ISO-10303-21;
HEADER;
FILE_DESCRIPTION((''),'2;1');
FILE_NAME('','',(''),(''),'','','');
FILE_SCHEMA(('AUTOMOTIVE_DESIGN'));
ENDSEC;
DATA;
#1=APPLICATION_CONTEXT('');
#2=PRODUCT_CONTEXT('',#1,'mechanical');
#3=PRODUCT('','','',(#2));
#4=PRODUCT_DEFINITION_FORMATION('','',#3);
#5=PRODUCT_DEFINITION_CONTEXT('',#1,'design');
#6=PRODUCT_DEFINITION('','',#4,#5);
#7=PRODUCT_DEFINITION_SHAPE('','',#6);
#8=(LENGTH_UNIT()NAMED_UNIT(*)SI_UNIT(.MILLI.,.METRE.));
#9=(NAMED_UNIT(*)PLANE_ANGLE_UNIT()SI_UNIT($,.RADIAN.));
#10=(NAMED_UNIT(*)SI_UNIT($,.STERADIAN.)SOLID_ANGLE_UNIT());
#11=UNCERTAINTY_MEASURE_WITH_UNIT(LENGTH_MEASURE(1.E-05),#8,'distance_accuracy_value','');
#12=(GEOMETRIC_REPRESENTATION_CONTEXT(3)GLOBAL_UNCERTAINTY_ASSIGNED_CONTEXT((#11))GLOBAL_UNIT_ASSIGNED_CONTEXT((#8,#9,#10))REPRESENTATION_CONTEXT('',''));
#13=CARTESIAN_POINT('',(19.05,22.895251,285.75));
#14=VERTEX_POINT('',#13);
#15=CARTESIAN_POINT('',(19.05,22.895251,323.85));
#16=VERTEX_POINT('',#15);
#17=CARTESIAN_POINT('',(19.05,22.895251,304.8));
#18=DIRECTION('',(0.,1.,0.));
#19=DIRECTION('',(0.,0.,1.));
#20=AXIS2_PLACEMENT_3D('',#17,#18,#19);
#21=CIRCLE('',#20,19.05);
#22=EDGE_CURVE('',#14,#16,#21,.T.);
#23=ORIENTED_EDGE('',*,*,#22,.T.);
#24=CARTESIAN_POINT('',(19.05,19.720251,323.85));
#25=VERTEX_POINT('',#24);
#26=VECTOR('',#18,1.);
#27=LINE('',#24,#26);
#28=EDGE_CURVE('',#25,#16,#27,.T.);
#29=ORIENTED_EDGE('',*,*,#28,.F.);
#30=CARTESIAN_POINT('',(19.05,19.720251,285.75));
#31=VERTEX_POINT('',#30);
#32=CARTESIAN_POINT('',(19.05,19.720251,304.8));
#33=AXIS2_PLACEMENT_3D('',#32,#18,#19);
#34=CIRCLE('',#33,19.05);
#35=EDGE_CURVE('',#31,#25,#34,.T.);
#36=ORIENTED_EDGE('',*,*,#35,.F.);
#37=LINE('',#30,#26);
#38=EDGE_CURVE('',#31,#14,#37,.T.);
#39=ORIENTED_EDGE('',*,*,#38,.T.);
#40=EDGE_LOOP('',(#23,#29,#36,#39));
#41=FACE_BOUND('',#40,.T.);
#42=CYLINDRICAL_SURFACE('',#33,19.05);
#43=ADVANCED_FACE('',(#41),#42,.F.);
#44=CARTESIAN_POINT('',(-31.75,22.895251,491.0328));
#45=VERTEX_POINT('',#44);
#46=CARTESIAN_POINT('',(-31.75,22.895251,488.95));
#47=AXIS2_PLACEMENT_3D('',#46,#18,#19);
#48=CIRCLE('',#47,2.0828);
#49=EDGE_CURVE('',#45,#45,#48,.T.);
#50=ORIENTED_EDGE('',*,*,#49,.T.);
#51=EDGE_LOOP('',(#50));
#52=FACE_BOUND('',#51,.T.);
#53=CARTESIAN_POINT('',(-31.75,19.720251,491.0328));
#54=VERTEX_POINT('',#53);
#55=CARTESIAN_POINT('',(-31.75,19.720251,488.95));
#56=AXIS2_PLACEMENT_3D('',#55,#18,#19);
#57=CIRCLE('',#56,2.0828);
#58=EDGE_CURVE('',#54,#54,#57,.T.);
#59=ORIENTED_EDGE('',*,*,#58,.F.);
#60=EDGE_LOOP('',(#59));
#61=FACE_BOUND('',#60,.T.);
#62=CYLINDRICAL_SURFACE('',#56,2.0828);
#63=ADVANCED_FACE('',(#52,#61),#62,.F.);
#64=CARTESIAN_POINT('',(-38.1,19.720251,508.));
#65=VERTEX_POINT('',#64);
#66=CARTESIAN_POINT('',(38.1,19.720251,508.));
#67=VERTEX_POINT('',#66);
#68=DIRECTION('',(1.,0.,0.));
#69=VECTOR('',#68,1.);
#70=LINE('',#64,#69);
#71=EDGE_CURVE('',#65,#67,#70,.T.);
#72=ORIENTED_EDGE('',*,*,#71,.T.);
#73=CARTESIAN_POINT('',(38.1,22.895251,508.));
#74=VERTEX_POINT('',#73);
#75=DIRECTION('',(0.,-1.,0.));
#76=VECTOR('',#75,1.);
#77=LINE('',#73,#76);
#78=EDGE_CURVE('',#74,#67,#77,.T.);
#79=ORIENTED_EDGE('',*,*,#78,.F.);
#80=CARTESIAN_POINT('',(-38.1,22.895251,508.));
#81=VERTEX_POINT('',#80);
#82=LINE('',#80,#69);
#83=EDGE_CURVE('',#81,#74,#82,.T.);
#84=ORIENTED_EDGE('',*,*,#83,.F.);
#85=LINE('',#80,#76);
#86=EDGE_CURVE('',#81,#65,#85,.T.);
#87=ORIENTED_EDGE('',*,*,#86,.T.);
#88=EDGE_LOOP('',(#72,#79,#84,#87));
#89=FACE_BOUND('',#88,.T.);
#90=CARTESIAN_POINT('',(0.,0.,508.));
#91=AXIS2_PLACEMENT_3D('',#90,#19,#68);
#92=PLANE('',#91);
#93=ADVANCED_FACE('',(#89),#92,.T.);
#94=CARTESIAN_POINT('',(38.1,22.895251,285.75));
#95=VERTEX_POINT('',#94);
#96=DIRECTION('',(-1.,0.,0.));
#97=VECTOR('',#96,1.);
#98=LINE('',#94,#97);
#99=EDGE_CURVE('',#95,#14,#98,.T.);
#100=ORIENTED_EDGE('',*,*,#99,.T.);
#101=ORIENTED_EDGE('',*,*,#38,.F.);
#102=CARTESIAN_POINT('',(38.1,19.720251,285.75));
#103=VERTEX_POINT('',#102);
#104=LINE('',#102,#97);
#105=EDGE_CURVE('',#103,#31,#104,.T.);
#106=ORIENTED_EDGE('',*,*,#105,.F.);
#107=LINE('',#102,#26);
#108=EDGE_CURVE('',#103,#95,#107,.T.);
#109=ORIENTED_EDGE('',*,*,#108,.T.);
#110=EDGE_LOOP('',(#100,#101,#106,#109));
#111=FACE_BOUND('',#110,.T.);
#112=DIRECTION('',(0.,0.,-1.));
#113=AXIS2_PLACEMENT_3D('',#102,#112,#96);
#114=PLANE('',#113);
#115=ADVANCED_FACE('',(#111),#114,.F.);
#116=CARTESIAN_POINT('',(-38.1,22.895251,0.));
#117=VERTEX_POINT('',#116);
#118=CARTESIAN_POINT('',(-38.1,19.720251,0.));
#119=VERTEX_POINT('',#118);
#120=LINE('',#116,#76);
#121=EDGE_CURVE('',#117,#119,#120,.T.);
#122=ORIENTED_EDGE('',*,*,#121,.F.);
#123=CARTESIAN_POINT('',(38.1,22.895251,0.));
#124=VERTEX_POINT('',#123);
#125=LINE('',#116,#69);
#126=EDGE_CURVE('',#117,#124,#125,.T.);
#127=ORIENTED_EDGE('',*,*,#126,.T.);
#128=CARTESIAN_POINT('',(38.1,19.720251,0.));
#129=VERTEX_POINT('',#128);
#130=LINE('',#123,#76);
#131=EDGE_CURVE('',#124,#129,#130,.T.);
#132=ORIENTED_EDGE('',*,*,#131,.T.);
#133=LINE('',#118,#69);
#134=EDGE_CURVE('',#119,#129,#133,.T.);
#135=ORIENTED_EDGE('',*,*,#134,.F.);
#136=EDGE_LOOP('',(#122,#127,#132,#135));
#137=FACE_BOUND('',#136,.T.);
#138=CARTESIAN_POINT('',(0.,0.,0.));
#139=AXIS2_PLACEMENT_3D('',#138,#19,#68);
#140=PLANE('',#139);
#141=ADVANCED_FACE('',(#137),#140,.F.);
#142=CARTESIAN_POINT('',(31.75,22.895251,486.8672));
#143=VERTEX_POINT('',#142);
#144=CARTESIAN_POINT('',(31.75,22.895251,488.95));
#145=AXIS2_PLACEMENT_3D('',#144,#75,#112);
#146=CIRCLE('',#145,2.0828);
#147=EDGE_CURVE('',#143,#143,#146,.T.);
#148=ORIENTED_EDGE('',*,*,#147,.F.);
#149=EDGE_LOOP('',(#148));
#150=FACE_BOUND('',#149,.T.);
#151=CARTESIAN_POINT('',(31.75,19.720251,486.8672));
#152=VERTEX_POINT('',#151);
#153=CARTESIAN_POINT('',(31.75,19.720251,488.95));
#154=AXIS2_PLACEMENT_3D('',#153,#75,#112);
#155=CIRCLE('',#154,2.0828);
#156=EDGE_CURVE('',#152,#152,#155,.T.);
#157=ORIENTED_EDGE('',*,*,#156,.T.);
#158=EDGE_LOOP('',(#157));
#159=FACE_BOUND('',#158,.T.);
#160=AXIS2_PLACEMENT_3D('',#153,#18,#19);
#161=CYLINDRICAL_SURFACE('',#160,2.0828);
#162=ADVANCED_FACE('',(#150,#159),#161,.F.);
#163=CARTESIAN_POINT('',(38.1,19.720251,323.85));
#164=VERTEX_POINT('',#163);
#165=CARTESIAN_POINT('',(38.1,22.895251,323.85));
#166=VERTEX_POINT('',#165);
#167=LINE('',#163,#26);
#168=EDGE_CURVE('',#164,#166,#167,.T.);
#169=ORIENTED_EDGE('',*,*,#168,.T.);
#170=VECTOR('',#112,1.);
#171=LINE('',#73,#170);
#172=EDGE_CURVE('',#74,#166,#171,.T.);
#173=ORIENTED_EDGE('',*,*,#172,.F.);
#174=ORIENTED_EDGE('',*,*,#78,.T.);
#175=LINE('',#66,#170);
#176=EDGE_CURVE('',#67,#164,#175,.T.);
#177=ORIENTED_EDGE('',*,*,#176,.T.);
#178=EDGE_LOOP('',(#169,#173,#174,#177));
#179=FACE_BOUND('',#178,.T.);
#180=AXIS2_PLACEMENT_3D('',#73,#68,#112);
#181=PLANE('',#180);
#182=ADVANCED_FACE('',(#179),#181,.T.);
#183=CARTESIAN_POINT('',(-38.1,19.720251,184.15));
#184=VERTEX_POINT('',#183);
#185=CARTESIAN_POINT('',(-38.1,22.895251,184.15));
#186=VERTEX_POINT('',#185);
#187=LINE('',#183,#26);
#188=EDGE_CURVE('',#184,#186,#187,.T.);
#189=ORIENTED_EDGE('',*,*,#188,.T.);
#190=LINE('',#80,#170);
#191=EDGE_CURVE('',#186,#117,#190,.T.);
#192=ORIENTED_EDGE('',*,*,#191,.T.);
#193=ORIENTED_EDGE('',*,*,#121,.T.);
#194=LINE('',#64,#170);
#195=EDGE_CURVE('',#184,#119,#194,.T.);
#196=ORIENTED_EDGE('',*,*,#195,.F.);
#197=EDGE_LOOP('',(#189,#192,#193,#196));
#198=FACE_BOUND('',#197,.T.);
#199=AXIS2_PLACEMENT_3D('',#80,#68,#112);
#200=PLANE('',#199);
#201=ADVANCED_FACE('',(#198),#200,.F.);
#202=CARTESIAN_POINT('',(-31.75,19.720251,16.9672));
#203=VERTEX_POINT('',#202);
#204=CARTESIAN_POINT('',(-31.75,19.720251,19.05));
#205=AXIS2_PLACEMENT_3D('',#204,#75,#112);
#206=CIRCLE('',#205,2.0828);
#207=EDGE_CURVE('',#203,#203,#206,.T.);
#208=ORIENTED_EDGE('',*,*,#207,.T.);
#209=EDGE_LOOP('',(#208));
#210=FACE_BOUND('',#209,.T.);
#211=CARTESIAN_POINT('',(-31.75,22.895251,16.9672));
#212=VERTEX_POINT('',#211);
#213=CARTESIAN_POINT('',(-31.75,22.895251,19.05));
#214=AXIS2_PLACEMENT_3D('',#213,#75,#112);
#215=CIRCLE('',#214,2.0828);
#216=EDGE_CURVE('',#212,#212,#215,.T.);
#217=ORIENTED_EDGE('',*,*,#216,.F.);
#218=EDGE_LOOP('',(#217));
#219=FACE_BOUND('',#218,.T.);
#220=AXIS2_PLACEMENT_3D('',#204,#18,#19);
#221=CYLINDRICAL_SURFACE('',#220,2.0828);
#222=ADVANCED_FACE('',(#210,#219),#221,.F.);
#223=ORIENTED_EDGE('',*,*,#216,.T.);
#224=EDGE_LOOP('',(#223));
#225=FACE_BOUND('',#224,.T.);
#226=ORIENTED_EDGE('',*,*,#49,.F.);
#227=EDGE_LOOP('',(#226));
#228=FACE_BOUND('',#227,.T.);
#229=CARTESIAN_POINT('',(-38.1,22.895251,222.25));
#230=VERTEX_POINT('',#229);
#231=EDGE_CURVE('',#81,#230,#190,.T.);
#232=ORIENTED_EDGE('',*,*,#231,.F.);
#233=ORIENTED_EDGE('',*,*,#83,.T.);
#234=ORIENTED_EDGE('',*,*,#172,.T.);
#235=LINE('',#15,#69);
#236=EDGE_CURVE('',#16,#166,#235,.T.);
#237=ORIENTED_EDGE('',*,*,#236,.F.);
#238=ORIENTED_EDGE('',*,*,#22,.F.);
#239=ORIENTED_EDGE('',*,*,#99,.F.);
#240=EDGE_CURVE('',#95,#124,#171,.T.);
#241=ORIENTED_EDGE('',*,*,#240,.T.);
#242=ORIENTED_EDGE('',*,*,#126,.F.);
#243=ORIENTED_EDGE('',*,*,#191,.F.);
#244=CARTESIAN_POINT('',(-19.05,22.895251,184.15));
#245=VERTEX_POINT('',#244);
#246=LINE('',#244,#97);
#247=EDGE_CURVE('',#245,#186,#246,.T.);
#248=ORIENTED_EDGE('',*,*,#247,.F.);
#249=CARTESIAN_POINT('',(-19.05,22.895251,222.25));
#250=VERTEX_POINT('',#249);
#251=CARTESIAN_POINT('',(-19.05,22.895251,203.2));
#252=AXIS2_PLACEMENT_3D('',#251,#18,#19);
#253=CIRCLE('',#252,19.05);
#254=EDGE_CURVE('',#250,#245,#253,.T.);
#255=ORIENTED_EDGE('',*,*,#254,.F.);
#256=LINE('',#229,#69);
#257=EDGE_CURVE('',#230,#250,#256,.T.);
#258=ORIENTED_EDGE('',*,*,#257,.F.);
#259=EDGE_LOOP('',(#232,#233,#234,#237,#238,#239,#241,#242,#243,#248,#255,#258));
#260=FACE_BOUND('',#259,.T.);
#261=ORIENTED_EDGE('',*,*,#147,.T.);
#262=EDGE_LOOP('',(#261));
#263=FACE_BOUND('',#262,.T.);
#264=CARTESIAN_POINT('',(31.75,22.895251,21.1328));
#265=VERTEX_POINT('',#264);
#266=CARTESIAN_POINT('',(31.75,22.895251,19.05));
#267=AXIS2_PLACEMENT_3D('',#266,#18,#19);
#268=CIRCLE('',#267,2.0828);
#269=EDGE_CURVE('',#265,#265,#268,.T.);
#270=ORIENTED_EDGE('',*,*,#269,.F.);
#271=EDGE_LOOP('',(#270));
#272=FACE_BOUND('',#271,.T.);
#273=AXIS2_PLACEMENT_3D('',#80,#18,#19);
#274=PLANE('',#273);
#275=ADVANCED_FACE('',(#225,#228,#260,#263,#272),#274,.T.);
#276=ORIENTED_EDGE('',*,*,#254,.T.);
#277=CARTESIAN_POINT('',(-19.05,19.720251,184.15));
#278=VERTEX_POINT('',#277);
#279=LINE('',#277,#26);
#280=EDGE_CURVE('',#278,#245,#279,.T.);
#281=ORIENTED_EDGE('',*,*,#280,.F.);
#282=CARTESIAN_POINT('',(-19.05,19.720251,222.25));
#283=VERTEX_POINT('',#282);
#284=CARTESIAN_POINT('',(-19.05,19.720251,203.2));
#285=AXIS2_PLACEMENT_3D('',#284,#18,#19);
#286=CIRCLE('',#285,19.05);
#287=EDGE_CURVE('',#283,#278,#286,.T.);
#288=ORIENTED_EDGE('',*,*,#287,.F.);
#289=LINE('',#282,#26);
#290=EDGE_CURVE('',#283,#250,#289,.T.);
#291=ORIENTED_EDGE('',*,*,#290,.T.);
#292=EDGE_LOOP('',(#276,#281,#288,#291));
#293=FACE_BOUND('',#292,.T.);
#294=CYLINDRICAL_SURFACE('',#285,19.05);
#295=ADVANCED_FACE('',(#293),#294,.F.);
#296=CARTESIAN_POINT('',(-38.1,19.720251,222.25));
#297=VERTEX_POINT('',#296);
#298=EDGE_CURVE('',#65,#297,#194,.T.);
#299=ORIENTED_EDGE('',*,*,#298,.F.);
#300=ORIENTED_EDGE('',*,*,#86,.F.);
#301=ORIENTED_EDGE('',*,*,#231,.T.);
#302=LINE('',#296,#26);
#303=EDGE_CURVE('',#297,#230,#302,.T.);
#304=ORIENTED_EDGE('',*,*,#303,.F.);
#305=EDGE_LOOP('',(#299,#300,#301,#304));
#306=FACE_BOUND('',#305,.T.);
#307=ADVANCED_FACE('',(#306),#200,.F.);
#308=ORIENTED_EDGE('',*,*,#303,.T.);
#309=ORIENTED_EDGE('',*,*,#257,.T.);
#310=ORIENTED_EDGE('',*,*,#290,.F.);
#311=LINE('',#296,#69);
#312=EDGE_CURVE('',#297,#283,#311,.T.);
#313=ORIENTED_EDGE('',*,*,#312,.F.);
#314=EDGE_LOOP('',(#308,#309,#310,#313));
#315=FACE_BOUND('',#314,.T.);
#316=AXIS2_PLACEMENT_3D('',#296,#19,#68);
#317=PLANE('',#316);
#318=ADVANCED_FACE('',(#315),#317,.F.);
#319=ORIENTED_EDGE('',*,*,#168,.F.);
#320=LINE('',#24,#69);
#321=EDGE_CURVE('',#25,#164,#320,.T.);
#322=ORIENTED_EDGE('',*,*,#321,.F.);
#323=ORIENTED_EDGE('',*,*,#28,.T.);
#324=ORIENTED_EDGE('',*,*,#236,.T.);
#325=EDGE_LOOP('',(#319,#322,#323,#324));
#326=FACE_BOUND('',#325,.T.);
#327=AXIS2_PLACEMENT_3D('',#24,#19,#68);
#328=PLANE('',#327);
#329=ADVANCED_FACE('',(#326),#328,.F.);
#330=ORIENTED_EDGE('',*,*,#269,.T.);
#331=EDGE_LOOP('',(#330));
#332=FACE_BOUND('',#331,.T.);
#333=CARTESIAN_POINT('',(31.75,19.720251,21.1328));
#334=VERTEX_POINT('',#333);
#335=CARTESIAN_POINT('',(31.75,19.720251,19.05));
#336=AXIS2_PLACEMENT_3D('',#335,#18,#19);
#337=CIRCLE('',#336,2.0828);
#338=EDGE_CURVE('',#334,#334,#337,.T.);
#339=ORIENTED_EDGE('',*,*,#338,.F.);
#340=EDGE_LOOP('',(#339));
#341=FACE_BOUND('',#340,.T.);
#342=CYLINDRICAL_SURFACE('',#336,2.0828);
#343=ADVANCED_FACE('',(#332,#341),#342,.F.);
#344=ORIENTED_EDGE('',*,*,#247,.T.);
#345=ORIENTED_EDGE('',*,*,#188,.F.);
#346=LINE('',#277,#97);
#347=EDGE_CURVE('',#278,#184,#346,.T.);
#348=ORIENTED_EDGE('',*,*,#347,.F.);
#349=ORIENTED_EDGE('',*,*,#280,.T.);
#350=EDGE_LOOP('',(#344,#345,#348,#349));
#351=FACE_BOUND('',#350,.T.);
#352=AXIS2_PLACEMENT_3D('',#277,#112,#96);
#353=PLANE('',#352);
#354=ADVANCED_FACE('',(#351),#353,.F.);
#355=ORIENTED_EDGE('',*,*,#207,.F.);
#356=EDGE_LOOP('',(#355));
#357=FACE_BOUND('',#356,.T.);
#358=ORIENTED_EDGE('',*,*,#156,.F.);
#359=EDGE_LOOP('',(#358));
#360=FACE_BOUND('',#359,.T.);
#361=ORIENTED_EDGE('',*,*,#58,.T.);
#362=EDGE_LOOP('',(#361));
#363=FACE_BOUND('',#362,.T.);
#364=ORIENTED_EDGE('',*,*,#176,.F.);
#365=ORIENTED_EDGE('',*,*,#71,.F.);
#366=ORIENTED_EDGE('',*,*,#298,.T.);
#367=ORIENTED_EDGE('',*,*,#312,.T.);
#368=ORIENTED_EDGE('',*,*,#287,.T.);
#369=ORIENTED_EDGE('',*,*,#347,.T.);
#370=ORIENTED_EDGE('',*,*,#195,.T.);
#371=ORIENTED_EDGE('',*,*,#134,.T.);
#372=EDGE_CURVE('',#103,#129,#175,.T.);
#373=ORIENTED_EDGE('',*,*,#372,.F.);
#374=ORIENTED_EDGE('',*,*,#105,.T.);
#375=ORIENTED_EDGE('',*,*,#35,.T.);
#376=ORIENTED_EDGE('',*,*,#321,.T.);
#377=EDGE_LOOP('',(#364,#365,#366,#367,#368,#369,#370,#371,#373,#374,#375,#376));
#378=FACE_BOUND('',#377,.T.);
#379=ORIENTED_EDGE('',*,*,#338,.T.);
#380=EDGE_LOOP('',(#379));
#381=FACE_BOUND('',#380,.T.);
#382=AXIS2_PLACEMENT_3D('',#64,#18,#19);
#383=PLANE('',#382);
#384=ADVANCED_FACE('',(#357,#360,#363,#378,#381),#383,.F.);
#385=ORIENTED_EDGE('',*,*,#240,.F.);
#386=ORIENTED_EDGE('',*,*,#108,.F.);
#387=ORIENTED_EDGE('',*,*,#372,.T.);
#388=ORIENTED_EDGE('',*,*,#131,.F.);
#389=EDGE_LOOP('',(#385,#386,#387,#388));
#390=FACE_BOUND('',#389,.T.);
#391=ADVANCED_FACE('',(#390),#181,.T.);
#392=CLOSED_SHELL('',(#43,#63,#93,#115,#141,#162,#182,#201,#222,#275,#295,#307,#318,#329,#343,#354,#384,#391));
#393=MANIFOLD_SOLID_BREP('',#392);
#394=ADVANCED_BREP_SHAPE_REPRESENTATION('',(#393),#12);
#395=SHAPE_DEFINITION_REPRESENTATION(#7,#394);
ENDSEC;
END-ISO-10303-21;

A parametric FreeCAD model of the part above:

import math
import FreeCAD as App
import Part
import Sketcher

V = App.Vector
Q = App.Units.Quantity


def add_polygon(sketch, points):
    """Adds a closed chain of lines whose ends are joined by coincident constraints."""
    first, n = sketch.GeometryCount, len(points)
    for a, b in zip(points, points[1:] + points[:1]):
        sketch.addGeometry(Part.LineSegment(App.Vector(*a, 0), App.Vector(*b, 0)), False)
    for i in range(n):
        sketch.addConstraint(Sketcher.Constraint("Coincident", first + i, 2, first + (i + 1) % n, 1))

doc = App.newDocument("Part")
params = doc.addObject("Spreadsheet::Sheet", "Params")
for row, (alias, value) in enumerate([
    ("sketch1_width", "3 in"),
    ("sketch1_height", "0.125 in"),
    ("pad1_length", "20 in"),
    ("sketch2_radius", "0.75 in"),
    ("sketch2_width", "0.75 in"),
    ("sketch3_diameter", "0.164 in"),
], start=1):
    params.set(f"A{row}", alias)
    params.set(f"B{row}", "=" + value)
    params.setAlias(f"B{row}", alias)

body = doc.addObject("PartDesign::Body", "Body")

# Sketch on XY plane
sketch1 = body.newObject("Sketcher::SketchObject", "Sketch")
sketch1.AttachmentSupport = (doc.getObject("XY_Plane"), [""])
sketch1.MapMode = "FlatFace"
add_polygon(sketch1, [(-38.1, 22.9), (-38.1, 19.7), (38.1, 19.7), (38.1, 22.9)])  # lines 0-3
sketch1.addConstraint([
    Sketcher.Constraint("Vertical", 0),
    Sketcher.Constraint("Horizontal", 1),
    Sketcher.Constraint("Vertical", 2),
    Sketcher.Constraint("Horizontal", 3),
    Sketcher.Constraint("DistanceX", 1, 1, 1, 2, Q("3 in")),
    Sketcher.Constraint("DistanceX", 0, 2, -1, 1, Q("1.5 in")),
    Sketcher.Constraint("DistanceY", 0, 2, 0, 1, Q("0.125 in")),
    Sketcher.Constraint("DistanceY", -1, 1, 0, 2, Q("19.720251 mm")),
])
sketch1.setExpression("Constraints[8]", "Params.sketch1_width")
sketch1.setExpression("Constraints[10]", "Params.sketch1_height")
pad1 = body.newObject("PartDesign::Pad", "Pad")
pad1.Profile = sketch1
pad1.setExpression("Length", "Params.pad1_length")

# Sketch on XZ plane
sketch2 = body.newObject("Sketcher::SketchObject", "Sketch001")
sketch2.AttachmentSupport = (doc.getObject("XZ_Plane"), [""])
sketch2.MapMode = "FlatFace"
sketch2.AttachmentOffset = App.Placement(V(0, 0, -22.895251), App.Rotation())
sketch2.addGeometry([
    Part.LineSegment(V(-19, 184, 0), V(-38, 184, 0)),  # 0
    Part.LineSegment(V(-38, 184, 0), V(-38, 222, 0)),  # 1
    Part.LineSegment(V(-38, 222, 0), V(-19, 222, 0)),  # 2
    Part.ArcOfCircle(Part.Circle(V(-19, 203, 0), V(0, 0, 1), 19), math.radians(-90), math.radians(90)),  # 3
    Part.LineSegment(V(19, 324, 0), V(38, 324, 0)),  # 4
    Part.LineSegment(V(38, 324, 0), V(38, 286, 0)),  # 5
    Part.LineSegment(V(38, 286, 0), V(19, 286, 0)),  # 6
    Part.ArcOfCircle(Part.Circle(V(19, 305, 0), V(0, 0, 1), 19), math.radians(90), math.radians(270)),  # 7
], False)
sketch2.addConstraint([
    Sketcher.Constraint("Coincident", 0, 2, 1, 1),
    Sketcher.Constraint("Coincident", 1, 2, 2, 1),
    Sketcher.Constraint("Tangent", 2, 2, 3, 2),
    Sketcher.Constraint("Tangent", 3, 1, 0, 1),
    Sketcher.Constraint("Coincident", 4, 2, 5, 1),
    Sketcher.Constraint("Coincident", 5, 2, 6, 1),
    Sketcher.Constraint("Tangent", 6, 2, 7, 2),
    Sketcher.Constraint("Tangent", 7, 1, 4, 1),
    Sketcher.Constraint("Horizontal", 0),
    Sketcher.Constraint("Vertical", 1),
    Sketcher.Constraint("Horizontal", 2),
    Sketcher.Constraint("Horizontal", 4),
    Sketcher.Constraint("Vertical", 5),
    Sketcher.Constraint("Horizontal", 6),
    Sketcher.Constraint("Equal", 3, 7),
    Sketcher.Constraint("Equal", 2, 4),
    Sketcher.Constraint("Radius", 3, Q("0.75 in")),
    Sketcher.Constraint("DistanceY", -1, 1, 3, 3, Q("8 in")),
    Sketcher.Constraint("DistanceY", -1, 1, 7, 3, Q("12 in")),
    Sketcher.Constraint("DistanceX", 1, 2, 4, 2, Q("3 in")),
    Sketcher.Constraint("DistanceX", 0, 2, 0, 1, Q("0.75 in")),
    Sketcher.Constraint("DistanceX", 0, 2, -1, 1, Q("1.5 in")),
])
sketch2.setExpression("Constraints[16]", "Params.sketch2_radius")
sketch2.setExpression("Constraints[20]", "Params.sketch2_width")
pocket1 = body.newObject("PartDesign::Pocket", "Pocket")
pocket1.Profile = sketch2
pocket1.Type = "ThroughAll"
pocket1.Reversed = True

# Sketch on XZ plane
sketch3 = body.newObject("Sketcher::SketchObject", "Sketch002")
sketch3.AttachmentSupport = (doc.getObject("XZ_Plane"), [""])
sketch3.MapMode = "FlatFace"
sketch3.AttachmentOffset = App.Placement(V(0, 0, -22.895251), App.Rotation())
sketch3.addGeometry([
    Part.Circle(V(-31.8, 488.9, 0), V(0, 0, 1), 2.1),
    Part.Circle(V(31.8, 19.1, 0), V(0, 0, 1), 2.1),
], False)
sketch3.addConstraint([
    Sketcher.Constraint("Equal", 0, 1),
    Sketcher.Constraint("Diameter", 0, Q("0.164 in")),
    Sketcher.Constraint("DistanceX", 0, 3, 1, 3, Q("2.5 in")),
    Sketcher.Constraint("DistanceY", 1, 3, 0, 3, Q("18.5 in")),
    Sketcher.Constraint("DistanceX", 0, 3, -1, 1, Q("1.25 in")),
    Sketcher.Constraint("DistanceY", -1, 1, 0, 3, Q("19.25 in")),
])
sketch3.setExpression("Constraints[1]", "Params.sketch3_diameter")
pocket2 = body.newObject("PartDesign::Pocket", "Pocket001")
pocket2.Profile = sketch3
pocket2.Type = "ThroughAll"
pocket2.Reversed = True
doc.recompute()

datumplane = body.newObject("PartDesign::Plane", "DatumPlane")
datumplane.AttachmentSupport = (doc.getObject("XY_Plane"), [""])
datumplane.MapMode = "FlatFace"
datumplane.AttachmentOffset = App.Placement(V(0, 0, 10 * 25.4), App.Rotation())
mirrored = body.newObject("PartDesign::Mirrored", "Mirrored")
mirrored.Originals = [pocket2]
mirrored.MirrorPlane = (datumplane, [""])
body.Tip = mirrored

doc.recompute()
